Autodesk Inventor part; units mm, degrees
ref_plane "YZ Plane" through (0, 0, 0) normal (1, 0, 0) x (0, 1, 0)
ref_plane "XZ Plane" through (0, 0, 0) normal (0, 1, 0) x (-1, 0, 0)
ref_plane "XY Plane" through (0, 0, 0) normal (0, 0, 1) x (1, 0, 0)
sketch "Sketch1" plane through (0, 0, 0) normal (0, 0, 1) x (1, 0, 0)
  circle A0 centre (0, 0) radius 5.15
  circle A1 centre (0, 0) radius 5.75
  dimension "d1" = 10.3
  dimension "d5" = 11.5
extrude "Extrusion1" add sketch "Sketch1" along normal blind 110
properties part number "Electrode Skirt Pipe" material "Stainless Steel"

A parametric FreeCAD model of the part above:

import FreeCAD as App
import Part
import Sketcher
from FreeCAD import Vector
Q = App.Units.Quantity

doc = App.newDocument("Part")
body = doc.addObject("PartDesign::Body", "Body")

sketch1 = body.newObject("Sketcher::SketchObject", "Sketch")
sketch1.AttachmentSupport = (doc.getObject("XY_Plane"), [""])
sketch1.MapMode = "FlatFace"
sketch1.addGeometry(Part.Circle(Vector(0, 0, 0), Vector(0, 0, 1), 5.75), False)
sketch1.addGeometry(Part.Circle(Vector(0, 0, 0), Vector(0, 0, 1), 5.15), False)
sketch1.addConstraint(Sketcher.Constraint("Coincident", 0, 3, -1, 1))
sketch1.addConstraint(Sketcher.Constraint("Coincident", 1, 3, -1, 1))
sketch1.addConstraint(Sketcher.Constraint("Diameter", 0, Q("11.5 mm")))
sketch1.addConstraint(Sketcher.Constraint("Diameter", 1, Q("10.3 mm")))
pad1 = body.newObject("PartDesign::Pad", "Pad")
pad1.Profile = sketch1
pad1.Length = 110

doc.recompute()
